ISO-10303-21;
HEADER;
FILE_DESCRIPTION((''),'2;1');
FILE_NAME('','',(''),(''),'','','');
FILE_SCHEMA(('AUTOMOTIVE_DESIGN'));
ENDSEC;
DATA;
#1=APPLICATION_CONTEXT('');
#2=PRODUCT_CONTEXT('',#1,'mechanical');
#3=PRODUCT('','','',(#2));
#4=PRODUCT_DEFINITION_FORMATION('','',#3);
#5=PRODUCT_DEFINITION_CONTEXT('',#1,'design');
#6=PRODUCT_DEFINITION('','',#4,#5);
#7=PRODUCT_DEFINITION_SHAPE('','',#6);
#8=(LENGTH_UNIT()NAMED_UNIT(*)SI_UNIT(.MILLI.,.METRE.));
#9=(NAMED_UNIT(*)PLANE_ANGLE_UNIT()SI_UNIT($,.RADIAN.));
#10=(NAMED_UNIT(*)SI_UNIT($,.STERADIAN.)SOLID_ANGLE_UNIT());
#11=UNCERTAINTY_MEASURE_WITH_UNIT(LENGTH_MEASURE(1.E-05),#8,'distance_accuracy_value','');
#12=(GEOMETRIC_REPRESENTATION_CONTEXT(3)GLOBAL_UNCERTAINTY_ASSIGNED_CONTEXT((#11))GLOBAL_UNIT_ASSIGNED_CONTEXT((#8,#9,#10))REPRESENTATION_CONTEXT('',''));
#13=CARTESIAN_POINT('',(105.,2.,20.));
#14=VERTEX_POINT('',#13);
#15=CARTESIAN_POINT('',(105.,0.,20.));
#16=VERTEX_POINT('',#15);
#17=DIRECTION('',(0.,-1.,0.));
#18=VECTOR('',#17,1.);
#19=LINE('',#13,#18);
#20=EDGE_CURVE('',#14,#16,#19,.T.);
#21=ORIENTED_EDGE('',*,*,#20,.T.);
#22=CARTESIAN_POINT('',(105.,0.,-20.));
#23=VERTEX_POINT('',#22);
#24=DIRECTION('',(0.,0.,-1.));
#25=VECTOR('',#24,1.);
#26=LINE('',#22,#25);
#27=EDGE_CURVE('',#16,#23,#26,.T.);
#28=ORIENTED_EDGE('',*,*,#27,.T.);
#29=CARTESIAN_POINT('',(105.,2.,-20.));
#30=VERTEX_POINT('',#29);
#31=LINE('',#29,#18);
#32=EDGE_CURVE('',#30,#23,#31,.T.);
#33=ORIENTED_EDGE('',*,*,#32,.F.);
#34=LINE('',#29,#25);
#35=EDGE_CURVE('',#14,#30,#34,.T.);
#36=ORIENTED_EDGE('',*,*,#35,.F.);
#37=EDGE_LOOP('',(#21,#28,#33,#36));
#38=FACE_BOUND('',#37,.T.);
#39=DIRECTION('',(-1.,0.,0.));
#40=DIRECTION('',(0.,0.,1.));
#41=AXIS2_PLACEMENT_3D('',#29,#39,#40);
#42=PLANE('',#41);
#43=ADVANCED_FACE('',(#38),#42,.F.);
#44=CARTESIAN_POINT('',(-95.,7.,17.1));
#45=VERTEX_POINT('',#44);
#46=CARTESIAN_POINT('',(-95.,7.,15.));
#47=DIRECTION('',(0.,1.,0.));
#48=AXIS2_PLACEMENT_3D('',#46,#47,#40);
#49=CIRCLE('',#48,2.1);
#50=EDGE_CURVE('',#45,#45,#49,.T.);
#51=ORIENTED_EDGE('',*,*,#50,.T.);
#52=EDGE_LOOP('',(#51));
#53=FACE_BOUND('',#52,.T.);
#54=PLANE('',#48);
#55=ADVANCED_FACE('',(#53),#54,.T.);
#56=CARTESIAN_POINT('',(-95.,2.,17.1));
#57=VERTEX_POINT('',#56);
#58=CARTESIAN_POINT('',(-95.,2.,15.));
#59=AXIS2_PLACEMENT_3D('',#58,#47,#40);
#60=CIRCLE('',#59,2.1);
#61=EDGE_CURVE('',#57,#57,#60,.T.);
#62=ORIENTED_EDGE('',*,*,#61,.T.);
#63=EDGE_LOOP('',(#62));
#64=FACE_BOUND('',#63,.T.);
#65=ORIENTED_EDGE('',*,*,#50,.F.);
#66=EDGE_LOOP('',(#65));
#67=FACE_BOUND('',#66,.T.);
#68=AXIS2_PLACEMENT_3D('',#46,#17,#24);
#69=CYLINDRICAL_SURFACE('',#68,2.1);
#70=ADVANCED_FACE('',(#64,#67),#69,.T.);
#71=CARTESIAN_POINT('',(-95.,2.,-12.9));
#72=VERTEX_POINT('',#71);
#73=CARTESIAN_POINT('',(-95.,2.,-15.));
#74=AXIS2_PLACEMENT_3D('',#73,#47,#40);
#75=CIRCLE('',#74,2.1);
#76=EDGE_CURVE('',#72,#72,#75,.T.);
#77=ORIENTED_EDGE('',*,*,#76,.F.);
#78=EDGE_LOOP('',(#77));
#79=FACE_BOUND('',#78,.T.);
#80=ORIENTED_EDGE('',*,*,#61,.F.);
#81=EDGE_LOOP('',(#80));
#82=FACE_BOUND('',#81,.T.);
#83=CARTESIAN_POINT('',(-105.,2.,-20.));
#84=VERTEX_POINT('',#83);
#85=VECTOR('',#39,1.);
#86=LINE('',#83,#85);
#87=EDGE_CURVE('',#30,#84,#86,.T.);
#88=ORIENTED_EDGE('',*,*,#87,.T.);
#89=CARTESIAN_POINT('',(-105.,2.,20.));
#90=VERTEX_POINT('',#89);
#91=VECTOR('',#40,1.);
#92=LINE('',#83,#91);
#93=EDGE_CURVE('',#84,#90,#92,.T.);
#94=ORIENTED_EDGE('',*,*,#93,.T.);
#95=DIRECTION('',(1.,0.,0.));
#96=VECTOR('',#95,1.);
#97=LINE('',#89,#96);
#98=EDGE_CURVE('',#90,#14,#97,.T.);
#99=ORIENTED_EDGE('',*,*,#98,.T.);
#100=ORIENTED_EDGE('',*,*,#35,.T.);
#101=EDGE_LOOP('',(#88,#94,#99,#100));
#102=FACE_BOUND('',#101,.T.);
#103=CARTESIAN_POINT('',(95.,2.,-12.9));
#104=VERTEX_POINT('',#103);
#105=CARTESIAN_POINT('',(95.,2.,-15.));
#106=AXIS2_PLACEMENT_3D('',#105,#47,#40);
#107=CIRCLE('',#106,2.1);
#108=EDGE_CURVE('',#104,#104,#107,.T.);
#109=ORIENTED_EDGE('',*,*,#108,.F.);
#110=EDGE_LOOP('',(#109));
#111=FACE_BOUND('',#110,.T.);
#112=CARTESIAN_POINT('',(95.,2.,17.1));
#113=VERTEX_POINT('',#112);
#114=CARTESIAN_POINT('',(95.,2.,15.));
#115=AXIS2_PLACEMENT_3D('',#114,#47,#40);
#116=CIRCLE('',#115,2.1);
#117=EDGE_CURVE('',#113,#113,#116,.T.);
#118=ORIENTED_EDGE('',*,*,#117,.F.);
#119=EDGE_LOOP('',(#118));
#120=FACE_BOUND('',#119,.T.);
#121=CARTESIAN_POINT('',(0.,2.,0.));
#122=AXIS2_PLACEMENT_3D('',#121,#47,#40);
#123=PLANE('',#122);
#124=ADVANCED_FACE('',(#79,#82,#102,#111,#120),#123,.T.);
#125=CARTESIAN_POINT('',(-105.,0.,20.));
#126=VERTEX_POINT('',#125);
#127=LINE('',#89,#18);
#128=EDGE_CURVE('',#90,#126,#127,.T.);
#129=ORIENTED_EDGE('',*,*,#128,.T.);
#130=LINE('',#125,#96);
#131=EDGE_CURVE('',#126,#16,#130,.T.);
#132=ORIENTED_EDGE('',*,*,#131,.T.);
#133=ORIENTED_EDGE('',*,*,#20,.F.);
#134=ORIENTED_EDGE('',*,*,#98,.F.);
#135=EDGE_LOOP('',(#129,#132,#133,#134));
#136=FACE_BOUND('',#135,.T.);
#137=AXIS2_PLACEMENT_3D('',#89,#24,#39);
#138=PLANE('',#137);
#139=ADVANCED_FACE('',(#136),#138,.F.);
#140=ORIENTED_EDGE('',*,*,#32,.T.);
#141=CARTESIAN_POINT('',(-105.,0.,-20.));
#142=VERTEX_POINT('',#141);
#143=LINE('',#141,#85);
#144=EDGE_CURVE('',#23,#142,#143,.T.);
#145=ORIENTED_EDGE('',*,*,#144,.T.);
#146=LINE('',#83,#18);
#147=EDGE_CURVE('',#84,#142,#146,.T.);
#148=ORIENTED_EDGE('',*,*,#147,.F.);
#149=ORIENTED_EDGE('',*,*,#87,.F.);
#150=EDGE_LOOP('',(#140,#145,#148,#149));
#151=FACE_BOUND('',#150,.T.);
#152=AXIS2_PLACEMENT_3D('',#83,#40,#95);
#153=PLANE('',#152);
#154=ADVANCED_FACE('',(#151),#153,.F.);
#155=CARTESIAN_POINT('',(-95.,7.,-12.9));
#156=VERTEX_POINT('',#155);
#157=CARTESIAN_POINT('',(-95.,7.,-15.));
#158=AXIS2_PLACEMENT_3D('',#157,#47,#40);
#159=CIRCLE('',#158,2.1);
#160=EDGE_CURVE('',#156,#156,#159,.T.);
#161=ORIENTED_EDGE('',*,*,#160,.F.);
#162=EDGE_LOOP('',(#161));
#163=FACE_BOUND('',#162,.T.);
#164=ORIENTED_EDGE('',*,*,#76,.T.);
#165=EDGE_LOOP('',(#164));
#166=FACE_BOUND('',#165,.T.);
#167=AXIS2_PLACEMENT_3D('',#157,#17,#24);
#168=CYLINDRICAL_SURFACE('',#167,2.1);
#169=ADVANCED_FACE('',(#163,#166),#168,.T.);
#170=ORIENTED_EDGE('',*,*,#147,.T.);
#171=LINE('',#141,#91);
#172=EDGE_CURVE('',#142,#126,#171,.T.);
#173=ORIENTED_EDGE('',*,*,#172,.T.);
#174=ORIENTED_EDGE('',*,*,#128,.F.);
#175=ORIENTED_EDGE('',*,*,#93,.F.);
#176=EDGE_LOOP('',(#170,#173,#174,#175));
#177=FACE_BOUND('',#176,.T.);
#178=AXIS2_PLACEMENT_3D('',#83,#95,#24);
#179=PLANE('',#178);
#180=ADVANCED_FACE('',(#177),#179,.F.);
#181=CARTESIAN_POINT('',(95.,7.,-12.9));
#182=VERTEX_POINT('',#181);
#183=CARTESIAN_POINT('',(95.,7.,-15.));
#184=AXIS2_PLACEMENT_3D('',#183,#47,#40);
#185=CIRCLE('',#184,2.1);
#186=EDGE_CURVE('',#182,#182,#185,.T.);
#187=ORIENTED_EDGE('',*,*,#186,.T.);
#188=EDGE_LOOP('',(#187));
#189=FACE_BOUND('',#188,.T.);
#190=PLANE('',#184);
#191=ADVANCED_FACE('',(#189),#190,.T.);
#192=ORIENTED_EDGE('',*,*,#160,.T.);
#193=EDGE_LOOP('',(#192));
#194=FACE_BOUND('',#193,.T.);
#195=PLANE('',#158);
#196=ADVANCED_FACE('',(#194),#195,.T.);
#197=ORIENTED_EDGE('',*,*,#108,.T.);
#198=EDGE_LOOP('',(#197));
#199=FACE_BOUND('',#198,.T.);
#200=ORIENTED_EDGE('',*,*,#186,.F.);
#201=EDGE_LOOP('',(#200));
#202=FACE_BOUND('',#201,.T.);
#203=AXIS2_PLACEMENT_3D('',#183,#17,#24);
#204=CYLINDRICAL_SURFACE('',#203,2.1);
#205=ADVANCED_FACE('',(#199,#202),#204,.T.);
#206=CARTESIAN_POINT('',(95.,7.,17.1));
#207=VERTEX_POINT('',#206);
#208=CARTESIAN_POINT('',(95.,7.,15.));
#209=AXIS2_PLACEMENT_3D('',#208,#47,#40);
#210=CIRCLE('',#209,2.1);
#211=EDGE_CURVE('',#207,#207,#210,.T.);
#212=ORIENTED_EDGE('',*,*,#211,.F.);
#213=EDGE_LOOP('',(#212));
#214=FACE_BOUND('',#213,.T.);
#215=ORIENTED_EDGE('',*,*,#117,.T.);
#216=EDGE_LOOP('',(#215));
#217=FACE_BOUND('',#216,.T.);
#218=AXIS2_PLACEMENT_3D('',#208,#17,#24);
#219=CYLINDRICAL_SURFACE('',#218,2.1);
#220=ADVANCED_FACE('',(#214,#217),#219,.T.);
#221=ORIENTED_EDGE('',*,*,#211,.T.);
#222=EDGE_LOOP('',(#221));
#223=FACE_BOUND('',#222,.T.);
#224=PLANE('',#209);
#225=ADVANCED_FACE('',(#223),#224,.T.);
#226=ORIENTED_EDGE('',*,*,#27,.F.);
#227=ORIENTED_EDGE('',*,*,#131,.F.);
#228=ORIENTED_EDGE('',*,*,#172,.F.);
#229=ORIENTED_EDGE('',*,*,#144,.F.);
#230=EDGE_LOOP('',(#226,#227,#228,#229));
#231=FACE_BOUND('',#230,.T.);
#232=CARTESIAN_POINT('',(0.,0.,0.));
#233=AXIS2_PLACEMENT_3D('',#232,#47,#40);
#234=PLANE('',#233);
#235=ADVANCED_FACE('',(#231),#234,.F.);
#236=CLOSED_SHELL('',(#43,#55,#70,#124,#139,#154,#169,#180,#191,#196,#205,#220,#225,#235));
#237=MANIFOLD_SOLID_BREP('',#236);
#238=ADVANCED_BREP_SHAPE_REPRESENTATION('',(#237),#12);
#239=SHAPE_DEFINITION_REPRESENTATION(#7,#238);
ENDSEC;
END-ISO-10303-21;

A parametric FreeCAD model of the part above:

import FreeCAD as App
import Part
import Sketcher
from FreeCAD import Vector
Q = App.Units.Quantity

doc = App.newDocument("Part")
body = doc.addObject("PartDesign::Body", "Body")

sketch1 = doc.addObject("Sketcher::SketchObject", "Sketch")
body.addObject(sketch1)
sketch1.AttachmentSupport = (doc.XZ_Plane, [""])
sketch1.MapMode = "FlatFace"
sketch1.addGeometry([
    Part.LineSegment(Vector(-105, -20, 0), Vector(-105, 20, 0)),
    Part.LineSegment(Vector(-105, 20, 0), Vector(105, 20, 0)),
    Part.LineSegment(Vector(105, 20, 0), Vector(105, -20, 0)),
    Part.LineSegment(Vector(105, -20, 0), Vector(-105, -20, 0)),
], False)
sketch1.addConstraint([
    Sketcher.Constraint("Coincident", 0, 2, 1, 1),
    Sketcher.Constraint("Coincident", 1, 2, 2, 1),
    Sketcher.Constraint("Coincident", 2, 2, 3, 1),
    Sketcher.Constraint("Coincident", 3, 2, 0, 1),
    Sketcher.Constraint("Vertical", 0),
    Sketcher.Constraint("Horizontal", 1),
    Sketcher.Constraint("Vertical", 2),
    Sketcher.Constraint("Horizontal", 3),
    Sketcher.Constraint("Symmetric", 0, 2, 2, 2, -1, 1),
    Sketcher.Constraint("DistanceX", 1, 1, 1, 2, Q("210 mm")),
    Sketcher.Constraint("DistanceY", 0, 1, 0, 2, Q("40 mm")),
])
pad1 = doc.addObject("PartDesign::Pad", "Pad")
body.addObject(pad1)
pad1.Profile = sketch1
pad1.Length = 2
pad1.Reversed = True

sketch2 = doc.addObject("Sketcher::SketchObject", "Sketch001")
body.addObject(sketch2)
sketch2.AttachmentSupport = (doc.XZ_Plane, [""])
sketch2.MapMode = "FlatFace"
sketch2.AttachmentOffset = App.Placement(Vector(0, 0, -2), App.Rotation())
sketch2.addGeometry([
    Part.Circle(Vector(95, 15, 0), Vector(0, 0, 1), 2.1),
    Part.Circle(Vector(95, -15, 0), Vector(0, 0, 1), 2.1),
    Part.Circle(Vector(-95, -15, 0), Vector(0, 0, 1), 2.1),
    Part.Circle(Vector(-95, 15, 0), Vector(0, 0, 1), 2.1),
], False)
sketch2.addConstraint([
    Sketcher.Constraint("Equal", 0, 1),
    Sketcher.Constraint("Equal", 1, 2),
    Sketcher.Constraint("Equal", 2, 3),
    Sketcher.Constraint("Symmetric", 0, 3, 2, 3, -1, 1),
    Sketcher.Constraint("Symmetric", 1, 3, 3, 3, -1, 1),
    Sketcher.Constraint("Symmetric", 1, 3, 2, 3, -2),
    Sketcher.Constraint("Diameter", 0, Q("4.2 mm")),
    Sketcher.Constraint("DistanceX", -1, 1, 0, 3, Q("95 mm")),
    Sketcher.Constraint("DistanceY", -1, 1, 0, 3, Q("15 mm")),
])
pad2 = doc.addObject("PartDesign::Pad", "Pad001")
body.addObject(pad2)
pad2.Profile = sketch2
pad2.Length = 5
pad2.Reversed = True

doc.recompute()
